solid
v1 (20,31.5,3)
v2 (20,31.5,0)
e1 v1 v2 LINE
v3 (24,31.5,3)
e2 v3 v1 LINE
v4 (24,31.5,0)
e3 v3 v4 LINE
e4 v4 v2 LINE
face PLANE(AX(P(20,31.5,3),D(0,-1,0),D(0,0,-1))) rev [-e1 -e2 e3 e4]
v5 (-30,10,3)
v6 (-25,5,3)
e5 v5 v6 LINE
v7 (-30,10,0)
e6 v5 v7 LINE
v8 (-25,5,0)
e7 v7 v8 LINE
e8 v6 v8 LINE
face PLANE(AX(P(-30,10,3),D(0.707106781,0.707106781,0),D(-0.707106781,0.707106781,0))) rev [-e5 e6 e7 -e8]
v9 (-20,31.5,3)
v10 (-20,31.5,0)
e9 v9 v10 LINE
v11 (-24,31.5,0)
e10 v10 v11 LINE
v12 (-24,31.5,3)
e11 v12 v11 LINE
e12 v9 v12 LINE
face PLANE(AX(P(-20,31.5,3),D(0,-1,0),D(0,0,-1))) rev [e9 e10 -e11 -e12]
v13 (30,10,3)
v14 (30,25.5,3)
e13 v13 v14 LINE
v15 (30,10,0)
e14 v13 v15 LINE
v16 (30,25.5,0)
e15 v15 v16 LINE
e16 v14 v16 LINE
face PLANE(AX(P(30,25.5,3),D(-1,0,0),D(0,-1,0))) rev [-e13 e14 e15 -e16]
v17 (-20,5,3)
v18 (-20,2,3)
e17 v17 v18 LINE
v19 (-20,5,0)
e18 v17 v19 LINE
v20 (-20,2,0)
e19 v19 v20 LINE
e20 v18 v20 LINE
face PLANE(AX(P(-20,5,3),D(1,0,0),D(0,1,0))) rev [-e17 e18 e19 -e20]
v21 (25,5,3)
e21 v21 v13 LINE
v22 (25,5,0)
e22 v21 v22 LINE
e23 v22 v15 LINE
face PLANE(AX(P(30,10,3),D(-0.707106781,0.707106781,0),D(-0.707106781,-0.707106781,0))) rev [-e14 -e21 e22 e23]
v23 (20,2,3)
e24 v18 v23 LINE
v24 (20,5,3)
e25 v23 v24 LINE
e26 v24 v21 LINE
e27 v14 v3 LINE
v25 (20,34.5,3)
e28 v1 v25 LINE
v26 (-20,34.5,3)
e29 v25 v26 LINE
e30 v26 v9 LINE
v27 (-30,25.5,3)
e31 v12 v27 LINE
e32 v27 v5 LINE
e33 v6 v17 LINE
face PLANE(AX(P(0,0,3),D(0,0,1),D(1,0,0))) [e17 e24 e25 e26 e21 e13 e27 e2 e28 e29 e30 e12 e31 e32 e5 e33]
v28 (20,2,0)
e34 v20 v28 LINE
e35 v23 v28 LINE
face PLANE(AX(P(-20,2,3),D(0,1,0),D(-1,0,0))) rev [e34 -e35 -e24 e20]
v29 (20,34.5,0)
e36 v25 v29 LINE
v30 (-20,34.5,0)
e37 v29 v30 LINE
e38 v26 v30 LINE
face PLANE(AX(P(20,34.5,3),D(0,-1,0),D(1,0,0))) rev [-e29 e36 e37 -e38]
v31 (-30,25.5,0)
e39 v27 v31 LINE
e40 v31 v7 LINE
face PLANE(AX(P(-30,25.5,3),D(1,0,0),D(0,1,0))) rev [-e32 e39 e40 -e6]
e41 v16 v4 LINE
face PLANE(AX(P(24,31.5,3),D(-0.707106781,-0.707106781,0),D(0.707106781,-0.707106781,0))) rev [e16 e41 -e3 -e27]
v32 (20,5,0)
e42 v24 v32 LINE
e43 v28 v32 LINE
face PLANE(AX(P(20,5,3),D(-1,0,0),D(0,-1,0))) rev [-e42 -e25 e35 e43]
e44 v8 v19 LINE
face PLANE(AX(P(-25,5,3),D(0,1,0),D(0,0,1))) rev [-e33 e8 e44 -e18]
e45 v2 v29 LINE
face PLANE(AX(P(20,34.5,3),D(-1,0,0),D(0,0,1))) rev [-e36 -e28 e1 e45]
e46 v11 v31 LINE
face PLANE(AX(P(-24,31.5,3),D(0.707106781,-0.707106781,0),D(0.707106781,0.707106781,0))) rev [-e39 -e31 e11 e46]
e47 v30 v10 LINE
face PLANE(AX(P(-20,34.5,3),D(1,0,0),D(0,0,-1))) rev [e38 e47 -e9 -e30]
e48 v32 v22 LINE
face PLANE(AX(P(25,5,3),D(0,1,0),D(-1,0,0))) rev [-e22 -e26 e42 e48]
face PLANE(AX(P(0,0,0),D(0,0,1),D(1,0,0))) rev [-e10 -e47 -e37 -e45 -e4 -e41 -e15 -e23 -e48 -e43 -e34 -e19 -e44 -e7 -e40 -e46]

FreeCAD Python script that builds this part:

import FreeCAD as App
import Part
import Sketcher

doc = App.newDocument("Part")
body = doc.addObject("PartDesign::Body", "Body")

# Sketch on XY plane
sketch1 = doc.addObject("Sketcher::SketchObject", "Sketch")
body.addObject(sketch1)
sketch1.AttachmentSupport = (doc.XY_Plane, [""])
sketch1.MapMode = "FlatFace"
sketch1.addGeometry([
    Part.LineSegment(App.Vector(20, 34.5, 0), App.Vector(-20, 34.5, 0)),  # 0
    Part.LineSegment(App.Vector(-20, 34.5, 0), App.Vector(-20, 31.5, 0)),  # 1
    Part.LineSegment(App.Vector(-20, 31.5, 0), App.Vector(-24, 31.5, 0)),  # 2
    Part.LineSegment(App.Vector(-24, 31.5, 0), App.Vector(-30, 25.5, 0)),  # 3
    Part.LineSegment(App.Vector(-30, 25.5, 0), App.Vector(-30, 10, 0)),  # 4
    Part.LineSegment(App.Vector(-30, 10, 0), App.Vector(-25, 5, 0)),  # 5
    Part.LineSegment(App.Vector(-25, 5, 0), App.Vector(-20, 5, 0)),  # 6
    Part.LineSegment(App.Vector(-20, 5, 0), App.Vector(-20, 2, 0)),  # 7
    Part.LineSegment(App.Vector(-20, 2, 0), App.Vector(20, 2, 0)),  # 8
    Part.LineSegment(App.Vector(20, 2, 0), App.Vector(20, 5, 0)),  # 9
    Part.LineSegment(App.Vector(20, 5, 0), App.Vector(25, 5, 0)),  # 10
    Part.LineSegment(App.Vector(25, 5, 0), App.Vector(30, 10, 0)),  # 11
    Part.LineSegment(App.Vector(30, 10, 0), App.Vector(30, 25.5, 0)),  # 12
    Part.LineSegment(App.Vector(30, 25.5, 0), App.Vector(24, 31.5, 0)),  # 13
    Part.LineSegment(App.Vector(24, 31.5, 0), App.Vector(20, 31.5, 0)),  # 14
    Part.LineSegment(App.Vector(20, 31.5, 0), App.Vector(20, 34.5, 0)),  # 15
], False)
sketch1.addConstraint([
    Sketcher.Constraint("Coincident", 0, 2, 1, 1),
    Sketcher.Constraint("Coincident", 1, 2, 2, 1),
    Sketcher.Constraint("Coincident", 2, 2, 3, 1),
    Sketcher.Constraint("Coincident", 3, 2, 4, 1),
    Sketcher.Constraint("Coincident", 4, 2, 5, 1),
    Sketcher.Constraint("Coincident", 5, 2, 6, 1),
    Sketcher.Constraint("Coincident", 6, 2, 7, 1),
    Sketcher.Constraint("Coincident", 7, 2, 8, 1),
    Sketcher.Constraint("Coincident", 8, 2, 9, 1),
    Sketcher.Constraint("Coincident", 9, 2, 10, 1),
    Sketcher.Constraint("Coincident", 10, 2, 11, 1),
    Sketcher.Constraint("Coincident", 11, 2, 12, 1),
    Sketcher.Constraint("Coincident", 12, 2, 13, 1),
    Sketcher.Constraint("Coincident", 13, 2, 14, 1),
    Sketcher.Constraint("Coincident", 14, 2, 15, 1),
    Sketcher.Constraint("Coincident", 15, 2, 0, 1),
    Sketcher.Constraint("Horizontal", 0),
    Sketcher.Constraint("Vertical", 1),
    Sketcher.Constraint("Horizontal", 2),
    Sketcher.Constraint("Vertical", 4),
    Sketcher.Constraint("Horizontal", 6),
    Sketcher.Constraint("Vertical", 7),
    Sketcher.Constraint("Horizontal", 8),
    Sketcher.Constraint("Vertical", 9),
    Sketcher.Constraint("Horizontal", 10),
    Sketcher.Constraint("Vertical", 12),
    Sketcher.Constraint("Horizontal", 14),
    Sketcher.Constraint("Vertical", 15),
    Sketcher.Constraint("Symmetric", 6, 2, 9, 2, -2),
    Sketcher.Constraint("Symmetric", 4, 2, 11, 2, -2),
    Sketcher.Constraint("Symmetric", 2, 2, 13, 2, -2),
    Sketcher.Constraint("Perpendicular", 3, 5),
    Sketcher.Constraint("Perpendicular", 5, 11),
    Sketcher.Constraint("Perpendicular", 11, 13),
    Sketcher.Constraint("Horizontal", 3, 2, 12, 2),
    Sketcher.Constraint("Vertical", 1, 2, 6, 2),
    Sketcher.Constraint("Vertical", 9, 2, 14, 2),
    Sketcher.Constraint("Equal", 1, 7),
    Sketcher.Constraint("DistanceX", 0, 2, 0, 1, 40.0),
    Sketcher.Constraint("DistanceX", 2, 2, 2, 1, 4.0),
    Sketcher.Constraint("DistanceX", 6, 1, 6, 2, 5.0),
    Sketcher.Constraint("DistanceY", 1, 2, 1, 1, 3.0),
    Sketcher.Constraint("DistanceY", 4, 2, 4, 1, 15.5),
    Sketcher.Constraint("DistanceX", 3, 2, -1, 1, 30.0),
    Sketcher.Constraint("DistanceY", -1, 1, 4, 2, 10.0),
])
pad1 = doc.addObject("PartDesign::Pad", "Pad")
body.addObject(pad1)
pad1.Profile = sketch1
pad1.Length = 3

doc.recompute()
